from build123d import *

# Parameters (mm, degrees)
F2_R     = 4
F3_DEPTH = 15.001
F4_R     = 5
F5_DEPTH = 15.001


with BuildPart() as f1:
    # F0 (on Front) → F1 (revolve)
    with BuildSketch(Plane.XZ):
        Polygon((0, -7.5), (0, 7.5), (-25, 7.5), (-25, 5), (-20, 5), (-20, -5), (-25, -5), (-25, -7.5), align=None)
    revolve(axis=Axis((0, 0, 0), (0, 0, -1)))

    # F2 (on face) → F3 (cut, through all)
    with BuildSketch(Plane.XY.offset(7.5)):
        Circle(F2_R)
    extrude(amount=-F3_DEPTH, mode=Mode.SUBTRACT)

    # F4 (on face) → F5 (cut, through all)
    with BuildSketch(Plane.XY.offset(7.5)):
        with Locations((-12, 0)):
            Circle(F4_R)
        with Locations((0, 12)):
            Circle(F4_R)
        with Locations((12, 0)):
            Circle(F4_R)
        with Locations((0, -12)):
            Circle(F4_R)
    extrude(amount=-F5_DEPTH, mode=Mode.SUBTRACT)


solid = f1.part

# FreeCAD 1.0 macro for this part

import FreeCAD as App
import Part
import Sketcher
from FreeCAD import Vector

doc = App.newDocument("Part")
params = doc.addObject("Spreadsheet::Sheet", "Params")
for row, (alias, value) in enumerate([
    ("sketch1_width", "25 mm"),
    ("sketch1_width2", "5 mm"),
    ("sketch1_height", "15 mm"),
    ("sketch1_height2", "10 mm"),
    ("revolution_angle", "360 deg"),
    ("sketch2_diameter", "8 mm"),
    ("sketch3_diameter", "10 mm"),
], start=1):
    params.set(f"A{row}", alias)
    params.set(f"B{row}", "=" + value)
    params.setAlias(f"B{row}", alias)

body = doc.addObject("PartDesign::Body", "Body")

# Sketch on XZ plane
sketch1 = body.newObject("Sketcher::SketchObject", "Sketch")
sketch1.AttachmentSupport = (doc.getObject("XZ_Plane"), [""])
sketch1.MapMode = "FlatFace"
sketch1.addGeometry(Part.LineSegment(Vector(0, -7.5, 0), Vector(0, 7.5, 0)), False)
sketch1.addGeometry(Part.LineSegment(Vector(0, 7.5, 0), Vector(-25, 7.5, 0)), False)
sketch1.addGeometry(Part.LineSegment(Vector(-25, 7.5, 0), Vector(-25, 5, 0)), False)
sketch1.addGeometry(Part.LineSegment(Vector(-25, 5, 0), Vector(-20, 5, 0)), False)
sketch1.addGeometry(Part.LineSegment(Vector(-20, 5, 0), Vector(-20, -5, 0)), False)
sketch1.addGeometry(Part.LineSegment(Vector(-20, -5, 0), Vector(-25, -5, 0)), False)
sketch1.addGeometry(Part.LineSegment(Vector(-25, -5, 0), Vector(-25, -7.5, 0)), False)
sketch1.addGeometry(Part.LineSegment(Vector(-25, -7.5, 0), Vector(0, -7.5, 0)), False)
sketch1.addConstraint(Sketcher.Constraint("Coincident", 0, 2, 1, 1))
sketch1.addConstraint(Sketcher.Constraint("Coincident", 1, 2, 2, 1))
sketch1.addConstraint(Sketcher.Constraint("Coincident", 2, 2, 3, 1))
sketch1.addConstraint(Sketcher.Constraint("Coincident", 3, 2, 4, 1))
sketch1.addConstraint(Sketcher.Constraint("Coincident", 4, 2, 5, 1))
sketch1.addConstraint(Sketcher.Constraint("Coincident", 5, 2, 6, 1))
sketch1.addConstraint(Sketcher.Constraint("Coincident", 6, 2, 7, 1))
sketch1.addConstraint(Sketcher.Constraint("Coincident", 7, 2, 0, 1))
sketch1.addConstraint(Sketcher.Constraint("Vertical", 0))
sketch1.addConstraint(Sketcher.Constraint("Horizontal", 1))
sketch1.addConstraint(Sketcher.Constraint("Vertical", 2))
sketch1.addConstraint(Sketcher.Constraint("Horizontal", 3))
sketch1.addConstraint(Sketcher.Constraint("Vertical", 4))
sketch1.addConstraint(Sketcher.Constraint("Horizontal", 5))
sketch1.addConstraint(Sketcher.Constraint("Vertical", 6))
sketch1.addConstraint(Sketcher.Constraint("Horizontal", 7))
sketch1.addConstraint(Sketcher.Constraint("Symmetric", 0, 2, 7, 2, -1, 1))
sketch1.addConstraint(Sketcher.Constraint("Symmetric", 2, 2, 5, 2, -1))
sketch1.addConstraint(Sketcher.Constraint("DistanceX", 1, 2, 1, 1, 25.0))
sketch1.addConstraint(Sketcher.Constraint("DistanceX", 3, 1, 3, 2, 5.0))
sketch1.addConstraint(Sketcher.Constraint("DistanceY", 0, 1, 0, 2, 15.0))
sketch1.addConstraint(Sketcher.Constraint("DistanceY", 4, 2, 4, 1, 10.0))
sketch1.setExpression("Constraints[18]", "Params.sketch1_width")
sketch1.setExpression("Constraints[19]", "Params.sketch1_width2")
sketch1.setExpression("Constraints[20]", "Params.sketch1_height")
sketch1.setExpression("Constraints[21]", "Params.sketch1_height2")
revolution = body.newObject("PartDesign::Revolution", "Revolution")
revolution.Profile = sketch1
revolution.ReferenceAxis = (sketch1, ["V_Axis"])
revolution.setExpression("Angle", "Params.revolution_angle")

# Sketch on XY plane
sketch2 = body.newObject("Sketcher::SketchObject", "Sketch001")
sketch2.AttachmentSupport = (doc.getObject("XY_Plane"), [""])
sketch2.MapMode = "FlatFace"
sketch2.AttachmentOffset = App.Placement(Vector(0, 0, 7.5), App.Rotation())
sketch2.addGeometry(Part.Circle(Vector(0, 0, 0), Vector(0, 0, 1), 4), False)
sketch2.addConstraint(Sketcher.Constraint("Coincident", 0, 3, -1, 1))
sketch2.addConstraint(Sketcher.Constraint("Diameter", 0, 8.0))
sketch2.setExpression("Constraints[1]", "Params.sketch2_diameter")
pocket1 = body.newObject("PartDesign::Pocket", "Pocket")
pocket1.Profile = sketch2
pocket1.Type = "ThroughAll"

# Sketch on XY plane
sketch3 = body.newObject("Sketcher::SketchObject", "Sketch002")
sketch3.AttachmentSupport = (doc.getObject("XY_Plane"), [""])
sketch3.MapMode = "FlatFace"
sketch3.AttachmentOffset = App.Placement(Vector(0, 0, 7.5), App.Rotation())
sketch3.addGeometry(Part.Circle(Vector(-12, 0, 0), Vector(0, 0, 1), 5), False)
sketch3.addGeometry(Part.Circle(Vector(0, 12, 0), Vector(0, 0, 1), 5), False)
sketch3.addGeometry(Part.Circle(Vector(12, 0, 0), Vector(0, 0, 1), 5), False)
sketch3.addGeometry(Part.Circle(Vector(0, -12, 0), Vector(0, 0, 1), 5), False)
sketch3.addConstraint(Sketcher.Constraint("Equal", 0, 1))
sketch3.addConstraint(Sketcher.Constraint("Equal", 1, 2))
sketch3.addConstraint(Sketcher.Constraint("Equal", 2, 3))
sketch3.addConstraint(Sketcher.Constraint("Symmetric", 0, 3, 2, 3, -1, 1))
sketch3.addConstraint(Sketcher.Constraint("Symmetric", 1, 3, 3, 3, -1, 1))
sketch3.addConstraint(Sketcher.Constraint("PointOnObject", 0, 3, -1))
sketch3.addConstraint(Sketcher.Constraint("PointOnObject", 1, 3, -2))
sketch3.addConstraint(Sketcher.Constraint("Diameter", 0, 10.0))
sketch3.addConstraint(Sketcher.Constraint("DistanceX", 0, 3, -1, 1, 12.0))
sketch3.addConstraint(Sketcher.Constraint("DistanceY", -1, 1, 1, 3, 12.0))
sketch3.setExpression("Constraints[7]", "Params.sketch3_diameter")
pocket2 = body.newObject("PartDesign::Pocket", "Pocket001")
pocket2.Profile = sketch3
pocket2.Type = "ThroughAll"

doc.recompute()
